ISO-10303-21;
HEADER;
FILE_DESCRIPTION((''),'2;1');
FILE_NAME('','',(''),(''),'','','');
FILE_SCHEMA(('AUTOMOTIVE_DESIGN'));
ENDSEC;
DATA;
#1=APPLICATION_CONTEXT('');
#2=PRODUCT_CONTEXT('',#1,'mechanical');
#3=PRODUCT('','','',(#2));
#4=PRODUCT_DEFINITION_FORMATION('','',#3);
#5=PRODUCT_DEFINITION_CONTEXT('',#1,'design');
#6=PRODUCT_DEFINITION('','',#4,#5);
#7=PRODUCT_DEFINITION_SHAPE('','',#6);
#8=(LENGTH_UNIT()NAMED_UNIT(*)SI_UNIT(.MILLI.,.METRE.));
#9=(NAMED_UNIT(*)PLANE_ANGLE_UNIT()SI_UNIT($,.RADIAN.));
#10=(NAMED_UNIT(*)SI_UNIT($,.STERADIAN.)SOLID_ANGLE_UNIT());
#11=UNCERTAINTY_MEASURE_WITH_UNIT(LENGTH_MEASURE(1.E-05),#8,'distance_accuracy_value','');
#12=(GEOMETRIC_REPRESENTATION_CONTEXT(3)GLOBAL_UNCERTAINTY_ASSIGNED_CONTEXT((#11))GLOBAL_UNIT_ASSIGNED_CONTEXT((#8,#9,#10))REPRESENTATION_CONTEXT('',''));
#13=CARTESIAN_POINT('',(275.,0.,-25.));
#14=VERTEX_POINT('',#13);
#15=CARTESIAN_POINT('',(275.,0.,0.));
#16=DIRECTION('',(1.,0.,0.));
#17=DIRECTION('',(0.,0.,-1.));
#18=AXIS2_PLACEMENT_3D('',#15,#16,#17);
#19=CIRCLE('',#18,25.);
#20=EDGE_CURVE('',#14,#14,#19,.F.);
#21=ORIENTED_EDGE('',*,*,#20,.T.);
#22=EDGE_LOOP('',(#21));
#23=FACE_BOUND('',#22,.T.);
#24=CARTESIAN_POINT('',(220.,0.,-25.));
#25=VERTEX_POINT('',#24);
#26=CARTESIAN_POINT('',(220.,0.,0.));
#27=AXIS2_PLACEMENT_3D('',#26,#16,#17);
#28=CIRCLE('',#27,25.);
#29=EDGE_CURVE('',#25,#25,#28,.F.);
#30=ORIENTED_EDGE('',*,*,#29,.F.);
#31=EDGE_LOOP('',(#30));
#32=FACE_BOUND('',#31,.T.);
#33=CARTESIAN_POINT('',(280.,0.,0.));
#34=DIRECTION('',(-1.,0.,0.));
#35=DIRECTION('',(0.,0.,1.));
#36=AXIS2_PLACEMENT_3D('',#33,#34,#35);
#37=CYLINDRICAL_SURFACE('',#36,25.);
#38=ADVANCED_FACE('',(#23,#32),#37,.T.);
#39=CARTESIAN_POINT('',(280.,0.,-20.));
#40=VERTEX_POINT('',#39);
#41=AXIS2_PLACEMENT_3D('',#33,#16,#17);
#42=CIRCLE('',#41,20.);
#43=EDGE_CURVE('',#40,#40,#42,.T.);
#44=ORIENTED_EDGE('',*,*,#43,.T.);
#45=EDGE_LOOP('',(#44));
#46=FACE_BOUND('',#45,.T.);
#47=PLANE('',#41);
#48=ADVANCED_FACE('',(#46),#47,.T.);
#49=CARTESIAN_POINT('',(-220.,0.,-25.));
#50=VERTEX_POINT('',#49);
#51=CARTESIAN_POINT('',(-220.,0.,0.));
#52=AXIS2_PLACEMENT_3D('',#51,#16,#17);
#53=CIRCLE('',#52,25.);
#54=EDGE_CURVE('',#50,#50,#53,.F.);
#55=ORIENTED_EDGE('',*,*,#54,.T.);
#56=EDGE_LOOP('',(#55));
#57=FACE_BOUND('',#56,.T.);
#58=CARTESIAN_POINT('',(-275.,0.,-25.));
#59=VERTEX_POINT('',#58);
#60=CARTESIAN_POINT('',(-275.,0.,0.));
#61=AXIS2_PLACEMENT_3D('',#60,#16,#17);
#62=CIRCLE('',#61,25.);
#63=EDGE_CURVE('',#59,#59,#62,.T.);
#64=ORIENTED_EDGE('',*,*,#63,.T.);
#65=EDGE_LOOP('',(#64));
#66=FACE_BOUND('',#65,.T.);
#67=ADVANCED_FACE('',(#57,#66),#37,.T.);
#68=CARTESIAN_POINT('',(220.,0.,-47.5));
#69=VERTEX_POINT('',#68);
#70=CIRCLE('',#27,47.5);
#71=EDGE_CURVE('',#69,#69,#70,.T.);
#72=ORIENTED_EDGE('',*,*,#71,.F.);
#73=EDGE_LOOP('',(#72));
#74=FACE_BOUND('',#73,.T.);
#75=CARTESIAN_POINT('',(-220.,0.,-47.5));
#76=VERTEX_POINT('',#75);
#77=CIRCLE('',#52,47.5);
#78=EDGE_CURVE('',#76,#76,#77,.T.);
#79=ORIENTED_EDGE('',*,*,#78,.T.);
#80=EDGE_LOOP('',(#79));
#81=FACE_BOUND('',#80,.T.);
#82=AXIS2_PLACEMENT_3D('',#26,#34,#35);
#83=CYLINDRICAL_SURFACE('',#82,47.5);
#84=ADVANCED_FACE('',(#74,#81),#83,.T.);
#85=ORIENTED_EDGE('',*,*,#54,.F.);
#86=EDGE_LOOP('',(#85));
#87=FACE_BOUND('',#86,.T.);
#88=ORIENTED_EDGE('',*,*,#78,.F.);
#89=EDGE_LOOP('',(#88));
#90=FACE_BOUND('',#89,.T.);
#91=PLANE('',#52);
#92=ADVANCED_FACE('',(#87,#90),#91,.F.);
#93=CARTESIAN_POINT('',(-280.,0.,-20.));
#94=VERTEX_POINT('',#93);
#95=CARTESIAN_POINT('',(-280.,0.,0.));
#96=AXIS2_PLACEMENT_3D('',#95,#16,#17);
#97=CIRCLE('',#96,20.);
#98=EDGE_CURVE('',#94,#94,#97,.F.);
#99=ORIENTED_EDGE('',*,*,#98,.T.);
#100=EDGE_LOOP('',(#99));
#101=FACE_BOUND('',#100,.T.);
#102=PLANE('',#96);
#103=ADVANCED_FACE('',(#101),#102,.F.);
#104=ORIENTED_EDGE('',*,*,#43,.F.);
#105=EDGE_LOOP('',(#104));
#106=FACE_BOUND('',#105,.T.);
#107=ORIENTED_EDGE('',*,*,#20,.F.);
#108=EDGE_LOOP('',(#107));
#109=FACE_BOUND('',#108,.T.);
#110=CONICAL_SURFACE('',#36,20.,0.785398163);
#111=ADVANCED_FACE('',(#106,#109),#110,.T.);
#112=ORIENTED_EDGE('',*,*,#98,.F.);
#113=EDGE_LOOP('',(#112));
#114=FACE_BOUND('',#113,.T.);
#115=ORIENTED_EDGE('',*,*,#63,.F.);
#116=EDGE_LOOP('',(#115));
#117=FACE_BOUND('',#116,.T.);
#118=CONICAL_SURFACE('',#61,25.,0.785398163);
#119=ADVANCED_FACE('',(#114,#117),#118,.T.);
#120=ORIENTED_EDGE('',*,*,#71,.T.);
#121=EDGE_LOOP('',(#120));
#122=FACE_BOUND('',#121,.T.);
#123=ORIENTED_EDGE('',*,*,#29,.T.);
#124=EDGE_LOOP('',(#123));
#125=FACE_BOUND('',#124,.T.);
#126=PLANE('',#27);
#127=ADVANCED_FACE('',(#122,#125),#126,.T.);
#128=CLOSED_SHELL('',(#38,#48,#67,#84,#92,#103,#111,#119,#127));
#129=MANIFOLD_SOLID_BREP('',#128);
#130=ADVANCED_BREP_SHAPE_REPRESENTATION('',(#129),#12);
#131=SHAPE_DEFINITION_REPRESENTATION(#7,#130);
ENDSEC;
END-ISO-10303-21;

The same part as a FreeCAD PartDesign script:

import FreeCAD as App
import Part
import Sketcher
from FreeCAD import Vector
Q = App.Units.Quantity


def edges_at(feature, points):
    """Names of the edges that pass closest to the given points."""
    edges = feature.Shape.Edges
    near = lambda p: min(range(len(edges)), key=lambda i: edges[i].distToShape(Part.Vertex(*p))[0])
    return sorted({f"Edge{near(p) + 1}" for p in points})

doc = App.newDocument("Part")
body = doc.addObject("PartDesign::Body", "Body")

# Sketch on YZ plane
sketch1 = body.newObject("Sketcher::SketchObject", "Sketch")
sketch1.AttachmentSupport = (doc.getObject("YZ_Plane"), [""])
sketch1.MapMode = "FlatFace"
sketch1.addGeometry(Part.Circle(Vector(0, 0, 0), Vector(0, 0, 1), 47.5), False)
sketch1.addConstraint([
    Sketcher.Constraint("Coincident", 0, 3, -1, 1),
    Sketcher.Constraint("Diameter", 0, Q("95 mm")),
])
pad1 = body.newObject("PartDesign::Pad", "Pad")
pad1.Profile = sketch1
pad1.Length = 440
pad1.Midplane = True

# Sketch on YZ plane
sketch2 = body.newObject("Sketcher::SketchObject", "Sketch001")
sketch2.AttachmentSupport = (doc.getObject("YZ_Plane"), [""])
sketch2.MapMode = "FlatFace"
sketch2.addGeometry(Part.Circle(Vector(0, 0, 0), Vector(0, 0, 1), 25), False)
sketch2.addConstraint([
    Sketcher.Constraint("Coincident", 0, 3, -1, 1),
    Sketcher.Constraint("Diameter", 0, Q("50 mm")),
])
pad2 = body.newObject("PartDesign::Pad", "Pad001")
pad2.Profile = sketch2
pad2.Length = 560
pad2.Midplane = True
doc.recompute()

chamfer = body.newObject("PartDesign::Chamfer", "Chamfer")
chamfer.Base = (pad2, edges_at(pad2, [(-280, 0, 25), (280, 0, 25)]))
chamfer.Size = 5

doc.recompute()
